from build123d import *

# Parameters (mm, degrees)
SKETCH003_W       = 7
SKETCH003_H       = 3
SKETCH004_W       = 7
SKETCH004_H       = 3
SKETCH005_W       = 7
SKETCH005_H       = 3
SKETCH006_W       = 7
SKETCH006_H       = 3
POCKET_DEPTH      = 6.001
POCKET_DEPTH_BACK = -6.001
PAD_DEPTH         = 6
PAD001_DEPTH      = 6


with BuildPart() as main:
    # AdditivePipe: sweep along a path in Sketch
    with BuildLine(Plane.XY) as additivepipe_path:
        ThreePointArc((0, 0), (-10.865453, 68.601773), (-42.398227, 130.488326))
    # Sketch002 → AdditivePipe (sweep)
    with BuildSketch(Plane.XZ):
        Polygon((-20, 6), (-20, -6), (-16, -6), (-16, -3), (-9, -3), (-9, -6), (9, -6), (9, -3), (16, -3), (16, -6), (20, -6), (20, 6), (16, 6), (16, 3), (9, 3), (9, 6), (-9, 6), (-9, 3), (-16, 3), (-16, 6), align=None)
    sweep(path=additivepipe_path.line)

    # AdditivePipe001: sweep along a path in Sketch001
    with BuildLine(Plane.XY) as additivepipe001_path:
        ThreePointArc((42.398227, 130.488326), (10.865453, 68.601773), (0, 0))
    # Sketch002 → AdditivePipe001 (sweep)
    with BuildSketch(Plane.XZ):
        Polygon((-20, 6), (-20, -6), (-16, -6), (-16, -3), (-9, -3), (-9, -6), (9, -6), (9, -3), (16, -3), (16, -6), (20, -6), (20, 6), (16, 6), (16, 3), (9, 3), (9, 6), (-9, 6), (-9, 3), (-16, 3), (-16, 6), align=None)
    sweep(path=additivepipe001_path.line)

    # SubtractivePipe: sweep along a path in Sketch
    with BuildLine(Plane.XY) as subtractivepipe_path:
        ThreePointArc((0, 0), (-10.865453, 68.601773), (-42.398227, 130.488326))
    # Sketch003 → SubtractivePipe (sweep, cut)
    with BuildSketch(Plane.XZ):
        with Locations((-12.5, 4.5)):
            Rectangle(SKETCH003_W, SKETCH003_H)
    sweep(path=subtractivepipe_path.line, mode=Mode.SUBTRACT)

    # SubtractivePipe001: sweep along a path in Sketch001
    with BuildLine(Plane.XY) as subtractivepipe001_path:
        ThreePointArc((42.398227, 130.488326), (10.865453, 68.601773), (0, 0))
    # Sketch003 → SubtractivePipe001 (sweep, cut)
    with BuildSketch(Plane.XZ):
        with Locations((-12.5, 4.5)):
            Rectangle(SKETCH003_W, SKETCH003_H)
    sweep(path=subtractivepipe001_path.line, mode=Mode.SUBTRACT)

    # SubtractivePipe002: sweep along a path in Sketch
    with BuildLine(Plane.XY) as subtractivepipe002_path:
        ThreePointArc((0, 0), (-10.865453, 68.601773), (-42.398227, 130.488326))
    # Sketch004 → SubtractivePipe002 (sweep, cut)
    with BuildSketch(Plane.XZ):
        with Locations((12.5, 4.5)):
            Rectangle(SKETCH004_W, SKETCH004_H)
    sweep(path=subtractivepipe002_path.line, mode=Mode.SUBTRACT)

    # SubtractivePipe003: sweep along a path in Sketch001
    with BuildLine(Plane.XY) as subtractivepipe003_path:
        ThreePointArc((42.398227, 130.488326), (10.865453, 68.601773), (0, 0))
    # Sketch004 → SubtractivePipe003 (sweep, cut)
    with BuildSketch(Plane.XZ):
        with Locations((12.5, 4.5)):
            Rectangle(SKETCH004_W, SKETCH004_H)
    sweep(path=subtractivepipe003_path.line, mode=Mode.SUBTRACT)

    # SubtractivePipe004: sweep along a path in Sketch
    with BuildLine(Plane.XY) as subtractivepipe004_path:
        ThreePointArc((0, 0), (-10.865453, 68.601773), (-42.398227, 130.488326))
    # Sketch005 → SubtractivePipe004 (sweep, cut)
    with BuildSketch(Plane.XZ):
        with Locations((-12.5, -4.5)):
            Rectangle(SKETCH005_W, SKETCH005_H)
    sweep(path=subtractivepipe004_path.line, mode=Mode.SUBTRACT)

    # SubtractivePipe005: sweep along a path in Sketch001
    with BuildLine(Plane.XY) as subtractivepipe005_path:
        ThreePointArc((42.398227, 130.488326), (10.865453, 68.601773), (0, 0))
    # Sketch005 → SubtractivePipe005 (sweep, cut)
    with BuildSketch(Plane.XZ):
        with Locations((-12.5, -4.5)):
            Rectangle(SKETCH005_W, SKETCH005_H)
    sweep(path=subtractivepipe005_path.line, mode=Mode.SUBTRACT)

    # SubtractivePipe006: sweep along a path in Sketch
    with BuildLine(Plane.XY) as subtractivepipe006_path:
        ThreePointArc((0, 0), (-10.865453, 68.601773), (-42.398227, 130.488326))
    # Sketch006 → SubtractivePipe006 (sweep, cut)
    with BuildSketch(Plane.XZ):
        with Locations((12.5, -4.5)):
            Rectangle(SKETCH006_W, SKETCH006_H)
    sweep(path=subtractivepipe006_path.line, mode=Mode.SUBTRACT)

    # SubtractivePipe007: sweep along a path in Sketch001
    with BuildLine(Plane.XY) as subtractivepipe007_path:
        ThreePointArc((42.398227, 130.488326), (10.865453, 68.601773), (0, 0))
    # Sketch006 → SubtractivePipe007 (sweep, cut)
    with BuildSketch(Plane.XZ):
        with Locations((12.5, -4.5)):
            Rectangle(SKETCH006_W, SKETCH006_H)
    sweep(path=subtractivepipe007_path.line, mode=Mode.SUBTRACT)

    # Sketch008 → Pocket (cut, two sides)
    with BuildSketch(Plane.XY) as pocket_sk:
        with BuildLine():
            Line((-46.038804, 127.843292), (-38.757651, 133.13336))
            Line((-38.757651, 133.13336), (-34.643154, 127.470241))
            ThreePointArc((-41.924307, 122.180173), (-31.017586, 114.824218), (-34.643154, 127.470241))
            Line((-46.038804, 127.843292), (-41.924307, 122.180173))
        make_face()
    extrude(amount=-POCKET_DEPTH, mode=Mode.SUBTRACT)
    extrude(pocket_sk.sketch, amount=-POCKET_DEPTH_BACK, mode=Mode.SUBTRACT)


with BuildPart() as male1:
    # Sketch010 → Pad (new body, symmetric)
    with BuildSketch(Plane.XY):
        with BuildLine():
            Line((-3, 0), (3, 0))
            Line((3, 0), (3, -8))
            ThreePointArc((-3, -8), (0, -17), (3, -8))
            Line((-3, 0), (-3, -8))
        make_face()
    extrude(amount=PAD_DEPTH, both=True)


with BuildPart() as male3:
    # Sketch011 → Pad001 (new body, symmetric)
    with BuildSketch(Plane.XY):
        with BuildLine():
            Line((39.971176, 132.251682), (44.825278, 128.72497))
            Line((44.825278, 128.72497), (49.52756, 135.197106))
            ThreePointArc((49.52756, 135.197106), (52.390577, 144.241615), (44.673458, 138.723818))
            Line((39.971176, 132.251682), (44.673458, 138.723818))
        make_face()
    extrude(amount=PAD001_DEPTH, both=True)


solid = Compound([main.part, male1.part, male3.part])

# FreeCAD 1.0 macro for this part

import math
import FreeCAD as App
import Part
import Sketcher

V = App.Vector
Q = App.Units.Quantity


def add_polygon(sketch, points):
    """Adds a closed chain of lines whose ends are joined by coincident constraints."""
    first, n = sketch.GeometryCount, len(points)
    for a, b in zip(points, points[1:] + points[:1]):
        sketch.addGeometry(Part.LineSegment(App.Vector(*a, 0), App.Vector(*b, 0)), False)
    for i in range(n):
        sketch.addConstraint(Sketcher.Constraint("Coincident", first + i, 2, first + (i + 1) % n, 1))

doc = App.newDocument("Part")
params = doc.addObject("Spreadsheet::Sheet", "Params")
for row, (alias, value) in enumerate([
    ("sketch1_width", "4 mm"),
    ("sketch1_width2", "7 mm"),
    ("sketch1_width3", "18 mm"),
    ("sketch1_height", "12 mm"),
    ("sketch1_height2", "3 mm"),
    ("sketch3_width", "4 mm"),
    ("sketch3_width2", "7 mm"),
    ("sketch3_width3", "18 mm"),
    ("sketch3_height", "12 mm"),
    ("sketch3_height2", "3 mm"),
    ("sketch5_width", "7 mm"),
    ("sketch5_height", "3 mm"),
    ("sketch7_width", "7 mm"),
    ("sketch7_height", "3 mm"),
    ("sketch9_width", "7 mm"),
    ("sketch9_height", "3 mm"),
    ("sketch11_width", "7 mm"),
    ("sketch11_height", "3 mm"),
    ("sketch13_width", "7 mm"),
    ("sketch13_height", "3 mm"),
    ("sketch15_width", "7 mm"),
    ("sketch15_height", "3 mm"),
    ("sketch17_width", "7 mm"),
    ("sketch17_height", "3 mm"),
    ("sketch19_width", "7 mm"),
    ("sketch19_height", "3 mm"),
    ("sketch21_radius", "7 mm"),
    ("sketch21_length", "9 mm"),
    ("sketch21_length2", "7 mm"),
    ("sketch22_radius", "5 mm"),
    ("sketch22_width", "6 mm"),
    ("sketch22_height", "8 mm"),
    ("pad1_length", "12 mm"),
    ("sketch23_radius", "5 mm"),
    ("sketch23_length", "6 mm"),
    ("sketch23_length2", "8 mm"),
    ("pad2_length", "12 mm"),
], start=1):
    params.set(f"A{row}", alias)
    params.set(f"B{row}", "=" + value)
    params.setAlias(f"B{row}", alias)

body = doc.addObject("PartDesign::Body", "Body")

sketch1 = doc.addObject("Sketcher::SketchObject", "Sketch")
body.addObject(sketch1)
sketch1.AttachmentSupport = (doc.XZ_Plane, [""])
sketch1.MapMode = "FlatFace"
add_polygon(sketch1, [(-20, 6), (-20, -6), (-16, -6), (-16, -3), (-9, -3), (-9, -6), (9, -6), (9, -3), (16, -3), (16, -6), (20, -6), (20, 6), (16, 6), (16, 3), (9, 3), (9, 6), (-9, 6), (-9, 3), (-16, 3), (-16, 6)])
sketch1.addConstraint([
    Sketcher.Constraint("Vertical", 0),
    Sketcher.Constraint("Horizontal", 1),
    Sketcher.Constraint("Vertical", 2),
    Sketcher.Constraint("Horizontal", 3),
    Sketcher.Constraint("Vertical", 4),
    Sketcher.Constraint("Horizontal", 5),
    Sketcher.Constraint("Vertical", 6),
    Sketcher.Constraint("Horizontal", 7),
    Sketcher.Constraint("Vertical", 8),
    Sketcher.Constraint("Horizontal", 9),
    Sketcher.Constraint("Vertical", 10),
    Sketcher.Constraint("Horizontal", 11),
    Sketcher.Constraint("Vertical", 12),
    Sketcher.Constraint("Horizontal", 13),
    Sketcher.Constraint("Vertical", 14),
    Sketcher.Constraint("Horizontal", 15),
    Sketcher.Constraint("Vertical", 16),
    Sketcher.Constraint("Horizontal", 17),
    Sketcher.Constraint("Vertical", 18),
    Sketcher.Constraint("Horizontal", 19),
    Sketcher.Constraint("Symmetric", 0, 2, 10, 2, -1, 1),
    Sketcher.Constraint("Symmetric", 2, 2, 12, 2, -1, 1),
    Sketcher.Constraint("Symmetric", 4, 2, 14, 2, -1, 1),
    Sketcher.Constraint("Symmetric", 6, 2, 16, 2, -1, 1),
    Sketcher.Constraint("Symmetric", 8, 2, 18, 2, -1, 1),
    Sketcher.Constraint("Symmetric", 3, 2, 6, 2, -2),
    Sketcher.Constraint("Symmetric", 1, 2, 8, 2, -2),
    Sketcher.Constraint("Horizontal", 1, 2, 4, 2),
    Sketcher.Constraint("DistanceX", 1, 1, 1, 2, Q("4 mm")),
    Sketcher.Constraint("DistanceX", 3, 1, 3, 2, Q("7 mm")),
    Sketcher.Constraint("DistanceX", 5, 1, 5, 2, Q("18 mm")),
    Sketcher.Constraint("DistanceY", 0, 2, 0, 1, Q("12 mm")),
    Sketcher.Constraint("DistanceY", 2, 1, 2, 2, Q("3 mm")),
])
sketch1.setExpression("Constraints[48]", "Params.sketch1_width")
sketch1.setExpression("Constraints[49]", "Params.sketch1_width2")
sketch1.setExpression("Constraints[50]", "Params.sketch1_width3")
sketch1.setExpression("Constraints[51]", "Params.sketch1_height")
sketch1.setExpression("Constraints[52]", "Params.sketch1_height2")

sketch2 = doc.addObject("Sketcher::SketchObject", "Sketch001")
body.addObject(sketch2)
sketch2.AttachmentSupport = (doc.XY_Plane, [""])
sketch2.MapMode = "FlatFace"
sketch2.addGeometry(Part.ArcOfCircle(Part.Circle(V(-221.999993, 0.000002, 0), V(0, 0, 1), 221.999993), math.radians(-0.000001), math.radians(36)), False)
sketch2.addConstraint([
    Sketcher.Constraint("Coincident", 0, 1, -1, 1),
    Sketcher.Constraint("Radius", 0, Q("221.999993 mm")),
    Sketcher.Constraint("DistanceX", 0, 2, -1, 1, Q("42.398227 mm")),
    Sketcher.Constraint("DistanceY", -1, 1, 0, 2, Q("130.488326 mm")),
])
doc.recompute()

additivepipe = doc.addObject("PartDesign::AdditivePipe", "AdditivePipe")
body.addObject(additivepipe)
additivepipe.Profile = sketch1
additivepipe.Spine = (sketch2, ["Edge1"])

sketch3 = doc.addObject("Sketcher::SketchObject", "Sketch002")
body.addObject(sketch3)
sketch3.AttachmentSupport = (doc.XZ_Plane, [""])
sketch3.MapMode = "FlatFace"
add_polygon(sketch3, [(-20, 6), (-20, -6), (-16, -6), (-16, -3), (-9, -3), (-9, -6), (9, -6), (9, -3), (16, -3), (16, -6), (20, -6), (20, 6), (16, 6), (16, 3), (9, 3), (9, 6), (-9, 6), (-9, 3), (-16, 3), (-16, 6)])
sketch3.addConstraint([
    Sketcher.Constraint("Vertical", 0),
    Sketcher.Constraint("Horizontal", 1),
    Sketcher.Constraint("Vertical", 2),
    Sketcher.Constraint("Horizontal", 3),
    Sketcher.Constraint("Vertical", 4),
    Sketcher.Constraint("Horizontal", 5),
    Sketcher.Constraint("Vertical", 6),
    Sketcher.Constraint("Horizontal", 7),
    Sketcher.Constraint("Vertical", 8),
    Sketcher.Constraint("Horizontal", 9),
    Sketcher.Constraint("Vertical", 10),
    Sketcher.Constraint("Horizontal", 11),
    Sketcher.Constraint("Vertical", 12),
    Sketcher.Constraint("Horizontal", 13),
    Sketcher.Constraint("Vertical", 14),
    Sketcher.Constraint("Horizontal", 15),
    Sketcher.Constraint("Vertical", 16),
    Sketcher.Constraint("Horizontal", 17),
    Sketcher.Constraint("Vertical", 18),
    Sketcher.Constraint("Horizontal", 19),
    Sketcher.Constraint("Symmetric", 0, 2, 10, 2, -1, 1),
    Sketcher.Constraint("Symmetric", 2, 2, 12, 2, -1, 1),
    Sketcher.Constraint("Symmetric", 4, 2, 14, 2, -1, 1),
    Sketcher.Constraint("Symmetric", 6, 2, 16, 2, -1, 1),
    Sketcher.Constraint("Symmetric", 8, 2, 18, 2, -1, 1),
    Sketcher.Constraint("Symmetric", 3, 2, 6, 2, -2),
    Sketcher.Constraint("Symmetric", 1, 2, 8, 2, -2),
    Sketcher.Constraint("Horizontal", 1, 2, 4, 2),
    Sketcher.Constraint("DistanceX", 1, 1, 1, 2, Q("4 mm")),
    Sketcher.Constraint("DistanceX", 3, 1, 3, 2, Q("7 mm")),
    Sketcher.Constraint("DistanceX", 5, 1, 5, 2, Q("18 mm")),
    Sketcher.Constraint("DistanceY", 0, 2, 0, 1, Q("12 mm")),
    Sketcher.Constraint("DistanceY", 2, 1, 2, 2, Q("3 mm")),
])
sketch3.setExpression("Constraints[48]", "Params.sketch3_width")
sketch3.setExpression("Constraints[49]", "Params.sketch3_width2")
sketch3.setExpression("Constraints[50]", "Params.sketch3_width3")
sketch3.setExpression("Constraints[51]", "Params.sketch3_height")
sketch3.setExpression("Constraints[52]", "Params.sketch3_height2")

sketch4 = doc.addObject("Sketcher::SketchObject", "Sketch003")
body.addObject(sketch4)
sketch4.AttachmentSupport = (doc.XY_Plane, [""])
sketch4.MapMode = "FlatFace"
sketch4.addGeometry(Part.ArcOfCircle(Part.Circle(V(221.999993, 0.000002, 0), V(0, 0, 1), 221.999993), math.radians(144), math.radians(180.000001)), False)
sketch4.addConstraint([
    Sketcher.Constraint("Coincident", 0, 2, -1, 1),
    Sketcher.Constraint("Radius", 0, Q("221.999993 mm")),
    Sketcher.Constraint("DistanceX", -1, 1, 0, 1, Q("42.398227 mm")),
    Sketcher.Constraint("DistanceY", -1, 1, 0, 1, Q("130.488326 mm")),
])
doc.recompute()

additivepipe2 = doc.addObject("PartDesign::AdditivePipe", "AdditivePipe001")
body.addObject(additivepipe2)
additivepipe2.Profile = sketch3
additivepipe2.Spine = (sketch4, ["Edge1"])

sketch5 = doc.addObject("Sketcher::SketchObject", "Sketch004")
body.addObject(sketch5)
sketch5.AttachmentSupport = (doc.XZ_Plane, [""])
sketch5.MapMode = "FlatFace"
add_polygon(sketch5, [(-16, 6), (-16, 3), (-9, 3), (-9, 6)])
sketch5.addConstraint([
    Sketcher.Constraint("Vertical", 0),
    Sketcher.Constraint("Horizontal", 1),
    Sketcher.Constraint("Vertical", 2),
    Sketcher.Constraint("Horizontal", 3),
    Sketcher.Constraint("DistanceX", 1, 1, 1, 2, Q("7 mm")),
    Sketcher.Constraint("DistanceY", 0, 2, 0, 1, Q("3 mm")),
    Sketcher.Constraint("DistanceX", 0, 2, -1, 1, Q("16 mm")),
    Sketcher.Constraint("DistanceY", -1, 1, 0, 2, Q("3 mm")),
])
sketch5.setExpression("Constraints[8]", "Params.sketch5_width")
sketch5.setExpression("Constraints[9]", "Params.sketch5_height")

sketch6 = doc.addObject("Sketcher::SketchObject", "Sketch005")
body.addObject(sketch6)
sketch6.AttachmentSupport = (doc.XY_Plane, [""])
sketch6.MapMode = "FlatFace"
sketch6.addGeometry(Part.ArcOfCircle(Part.Circle(V(-221.999993, 0.000002, 0), V(0, 0, 1), 221.999993), math.radians(-0.000001), math.radians(36)), False)
sketch6.addConstraint([
    Sketcher.Constraint("Coincident", 0, 1, -1, 1),
    Sketcher.Constraint("Radius", 0, Q("221.999993 mm")),
    Sketcher.Constraint("DistanceX", 0, 2, -1, 1, Q("42.398227 mm")),
    Sketcher.Constraint("DistanceY", -1, 1, 0, 2, Q("130.488326 mm")),
])
doc.recompute()

subtractivepipe = doc.addObject("PartDesign::SubtractivePipe", "SubtractivePipe")
body.addObject(subtractivepipe)
subtractivepipe.Profile = sketch5
subtractivepipe.Spine = (sketch6, ["Edge1"])

sketch7 = doc.addObject("Sketcher::SketchObject", "Sketch006")
body.addObject(sketch7)
sketch7.AttachmentSupport = (doc.XZ_Plane, [""])
sketch7.MapMode = "FlatFace"
add_polygon(sketch7, [(-16, 6), (-16, 3), (-9, 3), (-9, 6)])
sketch7.addConstraint([
    Sketcher.Constraint("Vertical", 0),
    Sketcher.Constraint("Horizontal", 1),
    Sketcher.Constraint("Vertical", 2),
    Sketcher.Constraint("Horizontal", 3),
    Sketcher.Constraint("DistanceX", 1, 1, 1, 2, Q("7 mm")),
    Sketcher.Constraint("DistanceY", 0, 2, 0, 1, Q("3 mm")),
    Sketcher.Constraint("DistanceX", 0, 2, -1, 1, Q("16 mm")),
    Sketcher.Constraint("DistanceY", -1, 1, 0, 2, Q("3 mm")),
])
sketch7.setExpression("Constraints[8]", "Params.sketch7_width")
sketch7.setExpression("Constraints[9]", "Params.sketch7_height")

sketch8 = doc.addObject("Sketcher::SketchObject", "Sketch007")
body.addObject(sketch8)
sketch8.AttachmentSupport = (doc.XY_Plane, [""])
sketch8.MapMode = "FlatFace"
sketch8.addGeometry(Part.ArcOfCircle(Part.Circle(V(221.999993, 0.000002, 0), V(0, 0, 1), 221.999993), math.radians(144), math.radians(180.000001)), False)
sketch8.addConstraint([
    Sketcher.Constraint("Coincident", 0, 2, -1, 1),
    Sketcher.Constraint("Radius", 0, Q("221.999993 mm")),
    Sketcher.Constraint("DistanceX", -1, 1, 0, 1, Q("42.398227 mm")),
    Sketcher.Constraint("DistanceY", -1, 1, 0, 1, Q("130.488326 mm")),
])
doc.recompute()

subtractivepipe2 = doc.addObject("PartDesign::SubtractivePipe", "SubtractivePipe001")
body.addObject(subtractivepipe2)
subtractivepipe2.Profile = sketch7
subtractivepipe2.Spine = (sketch8, ["Edge1"])

sketch9 = doc.addObject("Sketcher::SketchObject", "Sketch008")
body.addObject(sketch9)
sketch9.AttachmentSupport = (doc.XZ_Plane, [""])
sketch9.MapMode = "FlatFace"
add_polygon(sketch9, [(9, 6), (9, 3), (16, 3), (16, 6)])
sketch9.addConstraint([
    Sketcher.Constraint("Vertical", 0),
    Sketcher.Constraint("Horizontal", 1),
    Sketcher.Constraint("Vertical", 2),
    Sketcher.Constraint("Horizontal", 3),
    Sketcher.Constraint("DistanceX", 1, 1, 1, 2, Q("7 mm")),
    Sketcher.Constraint("DistanceY", 0, 2, 0, 1, Q("3 mm")),
    Sketcher.Constraint("DistanceX", -1, 1, 0, 2, Q("9 mm")),
    Sketcher.Constraint("DistanceY", -1, 1, 0, 2, Q("3 mm")),
])
sketch9.setExpression("Constraints[8]", "Params.sketch9_width")
sketch9.setExpression("Constraints[9]", "Params.sketch9_height")

sketch10 = doc.addObject("Sketcher::SketchObject", "Sketch009")
body.addObject(sketch10)
sketch10.AttachmentSupport = (doc.XY_Plane, [""])
sketch10.MapMode = "FlatFace"
sketch10.addGeometry(Part.ArcOfCircle(Part.Circle(V(-221.999993, 0.000002, 0), V(0, 0, 1), 221.999993), math.radians(-0.000001), math.radians(36)), False)
sketch10.addConstraint([
    Sketcher.Constraint("Coincident", 0, 1, -1, 1),
    Sketcher.Constraint("Radius", 0, Q("221.999993 mm")),
    Sketcher.Constraint("DistanceX", 0, 2, -1, 1, Q("42.398227 mm")),
    Sketcher.Constraint("DistanceY", -1, 1, 0, 2, Q("130.488326 mm")),
])
doc.recompute()

subtractivepipe3 = doc.addObject("PartDesign::SubtractivePipe", "SubtractivePipe002")
body.addObject(subtractivepipe3)
subtractivepipe3.Profile = sketch9
subtractivepipe3.Spine = (sketch10, ["Edge1"])

sketch11 = doc.addObject("Sketcher::SketchObject", "Sketch010")
body.addObject(sketch11)
sketch11.AttachmentSupport = (doc.XZ_Plane, [""])
sketch11.MapMode = "FlatFace"
add_polygon(sketch11, [(9, 6), (9, 3), (16, 3), (16, 6)])
sketch11.addConstraint([
    Sketcher.Constraint("Vertical", 0),
    Sketcher.Constraint("Horizontal", 1),
    Sketcher.Constraint("Vertical", 2),
    Sketcher.Constraint("Horizontal", 3),
    Sketcher.Constraint("DistanceX", 1, 1, 1, 2, Q("7 mm")),
    Sketcher.Constraint("DistanceY", 0, 2, 0, 1, Q("3 mm")),
    Sketcher.Constraint("DistanceX", -1, 1, 0, 2, Q("9 mm")),
    Sketcher.Constraint("DistanceY", -1, 1, 0, 2, Q("3 mm")),
])
sketch11.setExpression("Constraints[8]", "Params.sketch11_width")
sketch11.setExpression("Constraints[9]", "Params.sketch11_height")

sketch12 = doc.addObject("Sketcher::SketchObject", "Sketch011")
body.addObject(sketch12)
sketch12.AttachmentSupport = (doc.XY_Plane, [""])
sketch12.MapMode = "FlatFace"
sketch12.addGeometry(Part.ArcOfCircle(Part.Circle(V(221.999993, 0.000002, 0), V(0, 0, 1), 221.999993), math.radians(144), math.radians(180.000001)), False)
sketch12.addConstraint([
    Sketcher.Constraint("Coincident", 0, 2, -1, 1),
    Sketcher.Constraint("Radius", 0, Q("221.999993 mm")),
    Sketcher.Constraint("DistanceX", -1, 1, 0, 1, Q("42.398227 mm")),
    Sketcher.Constraint("DistanceY", -1, 1, 0, 1, Q("130.488326 mm")),
])
doc.recompute()

subtractivepipe4 = doc.addObject("PartDesign::SubtractivePipe", "SubtractivePipe003")
body.addObject(subtractivepipe4)
subtractivepipe4.Profile = sketch11
subtractivepipe4.Spine = (sketch12, ["Edge1"])

sketch13 = doc.addObject("Sketcher::SketchObject", "Sketch012")
body.addObject(sketch13)
sketch13.AttachmentSupport = (doc.XZ_Plane, [""])
sketch13.MapMode = "FlatFace"
add_polygon(sketch13, [(-16, -3), (-16, -6), (-9, -6), (-9, -3)])
sketch13.addConstraint([
    Sketcher.Constraint("Vertical", 0),
    Sketcher.Constraint("Horizontal", 1),
    Sketcher.Constraint("Vertical", 2),
    Sketcher.Constraint("Horizontal", 3),
    Sketcher.Constraint("DistanceX", 1, 1, 1, 2, Q("7 mm")),
    Sketcher.Constraint("DistanceY", 0, 2, 0, 1, Q("3 mm")),
    Sketcher.Constraint("DistanceX", 0, 2, -1, 1, Q("16 mm")),
    Sketcher.Constraint("DistanceY", 0, 2, -1, 1, Q("6 mm")),
])
sketch13.setExpression("Constraints[8]", "Params.sketch13_width")
sketch13.setExpression("Constraints[9]", "Params.sketch13_height")

sketch14 = doc.addObject("Sketcher::SketchObject", "Sketch013")
body.addObject(sketch14)
sketch14.AttachmentSupport = (doc.XY_Plane, [""])
sketch14.MapMode = "FlatFace"
sketch14.addGeometry(Part.ArcOfCircle(Part.Circle(V(-221.999993, 0.000002, 0), V(0, 0, 1), 221.999993), math.radians(-0.000001), math.radians(36)), False)
sketch14.addConstraint([
    Sketcher.Constraint("Coincident", 0, 1, -1, 1),
    Sketcher.Constraint("Radius", 0, Q("221.999993 mm")),
    Sketcher.Constraint("DistanceX", 0, 2, -1, 1, Q("42.398227 mm")),
    Sketcher.Constraint("DistanceY", -1, 1, 0, 2, Q("130.488326 mm")),
])
doc.recompute()

subtractivepipe5 = doc.addObject("PartDesign::SubtractivePipe", "SubtractivePipe004")
body.addObject(subtractivepipe5)
subtractivepipe5.Profile = sketch13
subtractivepipe5.Spine = (sketch14, ["Edge1"])

sketch15 = doc.addObject("Sketcher::SketchObject", "Sketch014")
body.addObject(sketch15)
sketch15.AttachmentSupport = (doc.XZ_Plane, [""])
sketch15.MapMode = "FlatFace"
add_polygon(sketch15, [(-16, -3), (-16, -6), (-9, -6), (-9, -3)])
sketch15.addConstraint([
    Sketcher.Constraint("Vertical", 0),
    Sketcher.Constraint("Horizontal", 1),
    Sketcher.Constraint("Vertical", 2),
    Sketcher.Constraint("Horizontal", 3),
    Sketcher.Constraint("DistanceX", 1, 1, 1, 2, Q("7 mm")),
    Sketcher.Constraint("DistanceY", 0, 2, 0, 1, Q("3 mm")),
    Sketcher.Constraint("DistanceX", 0, 2, -1, 1, Q("16 mm")),
    Sketcher.Constraint("DistanceY", 0, 2, -1, 1, Q("6 mm")),
])
sketch15.setExpression("Constraints[8]", "Params.sketch15_width")
sketch15.setExpression("Constraints[9]", "Params.sketch15_height")

sketch16 = doc.addObject("Sketcher::SketchObject", "Sketch015")
body.addObject(sketch16)
sketch16.AttachmentSupport = (doc.XY_Plane, [""])
sketch16.MapMode = "FlatFace"
sketch16.addGeometry(Part.ArcOfCircle(Part.Circle(V(221.999993, 0.000002, 0), V(0, 0, 1), 221.999993), math.radians(144), math.radians(180.000001)), False)
sketch16.addConstraint([
    Sketcher.Constraint("Coincident", 0, 2, -1, 1),
    Sketcher.Constraint("Radius", 0, Q("221.999993 mm")),
    Sketcher.Constraint("DistanceX", -1, 1, 0, 1, Q("42.398227 mm")),
    Sketcher.Constraint("DistanceY", -1, 1, 0, 1, Q("130.488326 mm")),
])
doc.recompute()

subtractivepipe6 = doc.addObject("PartDesign::SubtractivePipe", "SubtractivePipe005")
body.addObject(subtractivepipe6)
subtractivepipe6.Profile = sketch15
subtractivepipe6.Spine = (sketch16, ["Edge1"])

sketch17 = doc.addObject("Sketcher::SketchObject", "Sketch016")
body.addObject(sketch17)
sketch17.AttachmentSupport = (doc.XZ_Plane, [""])
sketch17.MapMode = "FlatFace"
add_polygon(sketch17, [(9, -3), (9, -6), (16, -6), (16, -3)])
sketch17.addConstraint([
    Sketcher.Constraint("Vertical", 0),
    Sketcher.Constraint("Horizontal", 1),
    Sketcher.Constraint("Vertical", 2),
    Sketcher.Constraint("Horizontal", 3),
    Sketcher.Constraint("DistanceX", 1, 1, 1, 2, Q("7 mm")),
    Sketcher.Constraint("DistanceY", 0, 2, 0, 1, Q("3 mm")),
    Sketcher.Constraint("DistanceX", -1, 1, 0, 2, Q("9 mm")),
    Sketcher.Constraint("DistanceY", 0, 2, -1, 1, Q("6 mm")),
])
sketch17.setExpression("Constraints[8]", "Params.sketch17_width")
sketch17.setExpression("Constraints[9]", "Params.sketch17_height")

sketch18 = doc.addObject("Sketcher::SketchObject", "Sketch017")
body.addObject(sketch18)
sketch18.AttachmentSupport = (doc.XY_Plane, [""])
sketch18.MapMode = "FlatFace"
sketch18.addGeometry(Part.ArcOfCircle(Part.Circle(V(-221.999993, 0.000002, 0), V(0, 0, 1), 221.999993), math.radians(-0.000001), math.radians(36)), False)
sketch18.addConstraint([
    Sketcher.Constraint("Coincident", 0, 1, -1, 1),
    Sketcher.Constraint("Radius", 0, Q("221.999993 mm")),
    Sketcher.Constraint("DistanceX", 0, 2, -1, 1, Q("42.398227 mm")),
    Sketcher.Constraint("DistanceY", -1, 1, 0, 2, Q("130.488326 mm")),
])
doc.recompute()

subtractivepipe7 = doc.addObject("PartDesign::SubtractivePipe", "SubtractivePipe006")
body.addObject(subtractivepipe7)
subtractivepipe7.Profile = sketch17
subtractivepipe7.Spine = (sketch18, ["Edge1"])

sketch19 = doc.addObject("Sketcher::SketchObject", "Sketch018")
body.addObject(sketch19)
sketch19.AttachmentSupport = (doc.XZ_Plane, [""])
sketch19.MapMode = "FlatFace"
add_polygon(sketch19, [(9, -3), (9, -6), (16, -6), (16, -3)])
sketch19.addConstraint([
    Sketcher.Constraint("Vertical", 0),
    Sketcher.Constraint("Horizontal", 1),
    Sketcher.Constraint("Vertical", 2),
    Sketcher.Constraint("Horizontal", 3),
    Sketcher.Constraint("DistanceX", 1, 1, 1, 2, Q("7 mm")),
    Sketcher.Constraint("DistanceY", 0, 2, 0, 1, Q("3 mm")),
    Sketcher.Constraint("DistanceX", -1, 1, 0, 2, Q("9 mm")),
    Sketcher.Constraint("DistanceY", 0, 2, -1, 1, Q("6 mm")),
])
sketch19.setExpression("Constraints[8]", "Params.sketch19_width")
sketch19.setExpression("Constraints[9]", "Params.sketch19_height")

sketch20 = doc.addObject("Sketcher::SketchObject", "Sketch019")
body.addObject(sketch20)
sketch20.AttachmentSupport = (doc.XY_Plane, [""])
sketch20.MapMode = "FlatFace"
sketch20.addGeometry(Part.ArcOfCircle(Part.Circle(V(221.999993, 0.000002, 0), V(0, 0, 1), 221.999993), math.radians(144), math.radians(180.000001)), False)
sketch20.addConstraint([
    Sketcher.Constraint("Coincident", 0, 2, -1, 1),
    Sketcher.Constraint("Radius", 0, Q("221.999993 mm")),
    Sketcher.Constraint("DistanceX", -1, 1, 0, 1, Q("42.398227 mm")),
    Sketcher.Constraint("DistanceY", -1, 1, 0, 1, Q("130.488326 mm")),
])
doc.recompute()

subtractivepipe8 = doc.addObject("PartDesign::SubtractivePipe", "SubtractivePipe007")
body.addObject(subtractivepipe8)
subtractivepipe8.Profile = sketch19
subtractivepipe8.Spine = (sketch20, ["Edge1"])

sketch21 = doc.addObject("Sketcher::SketchObject", "Sketch020")
body.addObject(sketch21)
sketch21.AttachmentSupport = (doc.XY_Plane, [""])
sketch21.MapMode = "FlatFace"
sketch21.addGeometry([
    Part.LineSegment(V(-38.757651, 133.13336, 0), V(-46.038804, 127.843292, 0)),
    Part.LineSegment(V(-46.038804, 127.843292, 0), V(-41.924307, 122.180173, 0)),
    Part.ArcOfCircle(Part.Circle(V(-35.132083, 120.487337, 0), V(0, 0, 1), 7), math.radians(166.005206), math.radians(445.994801)),
    Part.LineSegment(V(-34.643154, 127.470241, 0), V(-38.757651, 133.13336, 0)),
], False)
sketch21.addConstraint([
    Sketcher.Constraint("Coincident", 0, 2, 1, 1),
    Sketcher.Constraint("Coincident", 1, 2, 2, 1),
    Sketcher.Constraint("Coincident", 2, 2, 3, 1),
    Sketcher.Constraint("Coincident", 3, 2, 0, 1),
    Sketcher.Constraint("Perpendicular", 0, 1),
    Sketcher.Constraint("Parallel", 1, 3),
    Sketcher.Constraint("Equal", 1, 3),
    Sketcher.Constraint("Radius", 2, Q("7 mm")),
    Sketcher.Constraint("Angle", 0, Q("-143.999996 deg")),
    Sketcher.Constraint("Distance", 0, Q("9 mm")),
    Sketcher.Constraint("Distance", 1, Q("7 mm")),
    Sketcher.Constraint("DistanceY", -1, 1, 2, 2, Q("127.470241 mm")),
    Sketcher.Constraint("DistanceX", 3, 2, -1, 1, Q("38.757651 mm")),
])
sketch21.setExpression("Constraints[7]", "Params.sketch21_radius")
sketch21.setExpression("Constraints[9]", "Params.sketch21_length")
sketch21.setExpression("Constraints[10]", "Params.sketch21_length2")
pocket1 = doc.addObject("PartDesign::Pocket", "Pocket")
body.addObject(pocket1)
pocket1.Profile = sketch21
pocket1.Type = "ThroughAll"
pocket1.Midplane = True
body2 = doc.addObject("PartDesign::Body", "Body001")

sketch22 = doc.addObject("Sketcher::SketchObject", "Sketch021")
body2.addObject(sketch22)
sketch22.AttachmentSupport = (doc.getObject("XY_Plane001"), [""])
sketch22.MapMode = "FlatFace"
sketch22.addGeometry([
    Part.LineSegment(V(3, 0, 0), V(-3, 0, 0)),
    Part.LineSegment(V(-3, 0, 0), V(-3, -8, 0)),
    Part.ArcOfCircle(Part.Circle(V(0, -12, 0), V(0, 0, 1), 5), math.radians(126.869898), math.radians(413.130102)),
    Part.LineSegment(V(3, -8, 0), V(3, 0, 0)),
], False)
sketch22.addConstraint([
    Sketcher.Constraint("Coincident", 0, 2, 1, 1),
    Sketcher.Constraint("Coincident", 1, 2, 2, 1),
    Sketcher.Constraint("Coincident", 2, 2, 3, 1),
    Sketcher.Constraint("Coincident", 3, 2, 0, 1),
    Sketcher.Constraint("Horizontal", 0),
    Sketcher.Constraint("Vertical", 1),
    Sketcher.Constraint("Vertical", 3),
    Sketcher.Constraint("Symmetric", 0, 2, 3, 2, -1, 1),
    Sketcher.Constraint("PointOnObject", 2, 3, -2),
    Sketcher.Constraint("Radius", 2, Q("5 mm")),
    Sketcher.Constraint("DistanceX", 0, 2, 0, 1, Q("6 mm")),
    Sketcher.Constraint("DistanceY", 1, 2, 1, 1, Q("8 mm")),
])
sketch22.setExpression("Constraints[9]", "Params.sketch22_radius")
sketch22.setExpression("Constraints[10]", "Params.sketch22_width")
sketch22.setExpression("Constraints[11]", "Params.sketch22_height")
pad1 = doc.addObject("PartDesign::Pad", "Pad")
body2.addObject(pad1)
pad1.Profile = sketch22
pad1.setExpression("Length", "Params.pad1_length")
pad1.Midplane = True
body3 = doc.addObject("PartDesign::Body", "Body002")

sketch23 = doc.addObject("Sketcher::SketchObject", "Sketch022")
body3.addObject(sketch23)
sketch23.AttachmentSupport = (doc.getObject("XY_Plane002"), [""])
sketch23.MapMode = "FlatFace"
sketch23.addGeometry([
    Part.LineSegment(V(39.971176, 132.251682, 0), V(44.825278, 128.72497, 0)),
    Part.LineSegment(V(44.825278, 128.72497, 0), V(49.52756, 135.197106, 0)),
    Part.ArcOfCircle(Part.Circle(V(49.45165, 140.19653, 0), V(0, 0, 1), 5), math.radians(-89.130106), math.radians(197.130099)),
    Part.LineSegment(V(44.673458, 138.723818, 0), V(39.971176, 132.251682, 0)),
], False)
sketch23.addConstraint([
    Sketcher.Constraint("Coincident", 0, 2, 1, 1),
    Sketcher.Constraint("Coincident", 1, 2, 2, 1),
    Sketcher.Constraint("Coincident", 2, 2, 3, 1),
    Sketcher.Constraint("Coincident", 3, 2, 0, 1),
    Sketcher.Constraint("Perpendicular", 0, 1),
    Sketcher.Constraint("Parallel", 1, 3),
    Sketcher.Constraint("Equal", 1, 3),
    Sketcher.Constraint("Radius", 2, Q("5 mm")),
    Sketcher.Constraint("Angle", 0, Q("-36.000004 deg")),
    Sketcher.Constraint("Distance", 0, Q("6 mm")),
    Sketcher.Constraint("Distance", 1, Q("8 mm")),
    Sketcher.Constraint("DistanceX", -1, 1, 2, 3, Q("49.45165 mm")),
    Sketcher.Constraint("DistanceY", -1, 1, 2, 3, Q("140.19653 mm")),
])
sketch23.setExpression("Constraints[7]", "Params.sketch23_radius")
sketch23.setExpression("Constraints[9]", "Params.sketch23_length")
sketch23.setExpression("Constraints[10]", "Params.sketch23_length2")
pad2 = doc.addObject("PartDesign::Pad", "Pad001")
body3.addObject(pad2)
pad2.Profile = sketch23
pad2.setExpression("Length", "Params.pad2_length")
pad2.Midplane = True

doc.recompute()
